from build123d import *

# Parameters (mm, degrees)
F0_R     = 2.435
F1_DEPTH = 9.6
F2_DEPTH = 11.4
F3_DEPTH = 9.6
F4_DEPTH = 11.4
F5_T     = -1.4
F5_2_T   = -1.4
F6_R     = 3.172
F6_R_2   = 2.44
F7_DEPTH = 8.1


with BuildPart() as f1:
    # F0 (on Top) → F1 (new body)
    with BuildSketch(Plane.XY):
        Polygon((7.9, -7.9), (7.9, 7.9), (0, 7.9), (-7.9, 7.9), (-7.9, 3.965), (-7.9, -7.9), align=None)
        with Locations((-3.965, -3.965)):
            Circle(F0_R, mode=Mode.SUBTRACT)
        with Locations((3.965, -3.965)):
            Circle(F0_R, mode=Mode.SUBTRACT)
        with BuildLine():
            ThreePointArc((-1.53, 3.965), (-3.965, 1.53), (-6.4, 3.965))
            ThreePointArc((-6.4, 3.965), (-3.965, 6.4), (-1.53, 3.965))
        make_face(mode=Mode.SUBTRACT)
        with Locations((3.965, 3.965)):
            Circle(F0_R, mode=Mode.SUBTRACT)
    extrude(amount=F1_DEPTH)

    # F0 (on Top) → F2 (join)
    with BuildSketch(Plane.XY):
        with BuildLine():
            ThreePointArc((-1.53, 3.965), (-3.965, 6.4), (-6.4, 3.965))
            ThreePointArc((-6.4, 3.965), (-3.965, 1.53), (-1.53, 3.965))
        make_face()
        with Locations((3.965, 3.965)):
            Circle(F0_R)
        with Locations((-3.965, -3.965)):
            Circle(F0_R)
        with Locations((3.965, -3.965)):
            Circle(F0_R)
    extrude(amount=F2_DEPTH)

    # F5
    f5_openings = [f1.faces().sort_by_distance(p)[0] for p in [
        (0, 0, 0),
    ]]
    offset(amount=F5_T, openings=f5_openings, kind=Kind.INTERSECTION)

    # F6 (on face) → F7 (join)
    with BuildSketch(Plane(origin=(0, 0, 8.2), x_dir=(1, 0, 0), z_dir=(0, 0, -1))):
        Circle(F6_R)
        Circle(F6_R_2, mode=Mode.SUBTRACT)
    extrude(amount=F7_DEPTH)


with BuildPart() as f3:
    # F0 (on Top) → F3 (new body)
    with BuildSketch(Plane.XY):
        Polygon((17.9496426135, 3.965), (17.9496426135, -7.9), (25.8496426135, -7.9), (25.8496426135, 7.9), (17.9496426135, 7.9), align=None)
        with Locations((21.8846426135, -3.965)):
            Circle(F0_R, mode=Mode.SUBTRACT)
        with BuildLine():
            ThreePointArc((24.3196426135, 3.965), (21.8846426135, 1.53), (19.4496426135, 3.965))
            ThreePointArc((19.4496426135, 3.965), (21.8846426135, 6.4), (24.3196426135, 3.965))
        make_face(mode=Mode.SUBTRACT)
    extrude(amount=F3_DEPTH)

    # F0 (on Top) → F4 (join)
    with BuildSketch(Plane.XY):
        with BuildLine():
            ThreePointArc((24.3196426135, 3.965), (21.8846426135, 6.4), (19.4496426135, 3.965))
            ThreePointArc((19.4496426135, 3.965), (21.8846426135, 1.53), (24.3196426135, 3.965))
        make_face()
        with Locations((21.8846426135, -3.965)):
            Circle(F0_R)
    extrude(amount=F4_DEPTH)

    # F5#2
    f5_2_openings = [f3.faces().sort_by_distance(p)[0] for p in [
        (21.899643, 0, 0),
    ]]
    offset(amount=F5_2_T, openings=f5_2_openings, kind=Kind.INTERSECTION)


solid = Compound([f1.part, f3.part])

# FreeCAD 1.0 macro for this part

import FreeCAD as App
import Part
import Sketcher
from FreeCAD import Vector
Q = App.Units.Quantity


def faces_at(feature, points):
    """Names of the faces that lie closest to the given points."""
    faces = feature.Shape.Faces
    near = lambda p: min(range(len(faces)), key=lambda i: faces[i].distToShape(Part.Vertex(*p))[0])
    return sorted({f"Face{near(p) + 1}" for p in points})


def add_polygon(sketch, points):
    """Adds a closed chain of lines whose ends are joined by coincident constraints."""
    first, n = sketch.GeometryCount, len(points)
    for a, b in zip(points, points[1:] + points[:1]):
        sketch.addGeometry(Part.LineSegment(App.Vector(*a, 0), App.Vector(*b, 0)), False)
    for i in range(n):
        sketch.addConstraint(Sketcher.Constraint("Coincident", first + i, 2, first + (i + 1) % n, 1))

doc = App.newDocument("Part")
body = doc.addObject("PartDesign::Body", "Body")

# Sketch on XY plane
sketch1 = body.newObject("Sketcher::SketchObject", "Sketch")
sketch1.AttachmentSupport = (doc.getObject("XY_Plane"), [""])
sketch1.MapMode = "FlatFace"
add_polygon(sketch1, [(7.9, -7.9), (7.9, 7.9), (-7.9, 7.9), (-7.9, -7.9)])  # lines 0-3
sketch1.addGeometry(Part.Circle(Vector(-4, -4, 0), Vector(0, 0, 1), 2.4), False)  # 4
sketch1.addGeometry(Part.Circle(Vector(4, -4, 0), Vector(0, 0, 1), 2.4), False)  # 5
sketch1.addGeometry(Part.Circle(Vector(-4, 4, 0), Vector(0, 0, 1), 2.4), False)  # 6
sketch1.addGeometry(Part.Circle(Vector(4, 4, 0), Vector(0, 0, 1), 2.4), False)  # 7
sketch1.addConstraint([
    Sketcher.Constraint("Vertical", 0),
    Sketcher.Constraint("Horizontal", 1),
    Sketcher.Constraint("Vertical", 2),
    Sketcher.Constraint("Horizontal", 3),
    Sketcher.Constraint("Equal", 4, 5),
    Sketcher.Constraint("Equal", 5, 6),
    Sketcher.Constraint("Equal", 6, 7),
    Sketcher.Constraint("Symmetric", 5, 3, 6, 3, -1, 1),
    Sketcher.Constraint("Symmetric", 4, 3, 7, 3, -1, 1),
    Sketcher.Constraint("Symmetric", 0, 2, 2, 2, -1, 1),
    Sketcher.Constraint("Symmetric", 4, 3, 5, 3, -2),
    Sketcher.Constraint("Equal", 3, 0),
    Sketcher.Constraint("Diameter", 4, Q("4.87 mm")),
    Sketcher.Constraint("DistanceX", 1, 2, 1, 1, Q("15.8 mm")),
    Sketcher.Constraint("DistanceX", 4, 3, 5, 3, Q("7.93 mm")),
    Sketcher.Constraint("DistanceY", 4, 3, 6, 3, Q("7.93 mm")),
])
pad1 = body.newObject("PartDesign::Pad", "Pad")
pad1.Profile = sketch1
pad1.Length = 9.6

# Sketch on XY plane
sketch2 = body.newObject("Sketcher::SketchObject", "Sketch001")
sketch2.AttachmentSupport = (doc.getObject("XY_Plane"), [""])
sketch2.MapMode = "FlatFace"
sketch2.addGeometry([
    Part.Circle(Vector(-4, 4, 0), Vector(0, 0, 1), 2.4),
    Part.Circle(Vector(4, 4, 0), Vector(0, 0, 1), 2.4),
    Part.Circle(Vector(-4, -4, 0), Vector(0, 0, 1), 2.4),
    Part.Circle(Vector(4, -4, 0), Vector(0, 0, 1), 2.4),
], False)
sketch2.addConstraint([
    Sketcher.Constraint("Equal", 0, 1),
    Sketcher.Constraint("Equal", 1, 2),
    Sketcher.Constraint("Equal", 2, 3),
    Sketcher.Constraint("Symmetric", 1, 3, 2, 3, -1, 1),
    Sketcher.Constraint("Symmetric", 0, 3, 3, 3, -1, 1),
    Sketcher.Constraint("Symmetric", 0, 3, 1, 3, -2),
    Sketcher.Constraint("Diameter", 0, Q("4.87 mm")),
    Sketcher.Constraint("DistanceX", 0, 3, 1, 3, Q("7.93 mm")),
    Sketcher.Constraint("DistanceY", 2, 3, 0, 3, Q("7.93 mm")),
])
pad2 = body.newObject("PartDesign::Pad", "Pad001")
pad2.Profile = sketch2
pad2.Length = 11.4
doc.recompute()

thickness = body.newObject("PartDesign::Thickness", "Thickness")
thickness.Base = (pad2, faces_at(pad2, [(0, 0, 0)]))
thickness.Value = 1.4
thickness.Reversed = True
thickness.Join = "Intersection"

# Sketch on XY plane
sketch3 = body.newObject("Sketcher::SketchObject", "Sketch002")
sketch3.AttachmentSupport = (doc.getObject("XY_Plane"), [""])
sketch3.MapMode = "FlatFace"
sketch3.AttachmentOffset = App.Placement(Vector(0, 0, 8.2), App.Rotation())
sketch3.addGeometry([
    Part.Circle(Vector(0, 0, 0), Vector(0, 0, 1), 3.2),
    Part.Circle(Vector(0, 0, 0), Vector(0, 0, 1), 2.4),
], False)
sketch3.addConstraint([
    Sketcher.Constraint("Coincident", 0, 3, -1, 1),
    Sketcher.Constraint("Coincident", 1, 3, -1, 1),
    Sketcher.Constraint("Diameter", 1, Q("4.88 mm")),
    Sketcher.Constraint("Diameter", 0, Q("6.344 mm")),
])
pad3 = body.newObject("PartDesign::Pad", "Pad002")
pad3.Profile = sketch3
pad3.Length = 8.1
pad3.Reversed = True
body2 = doc.addObject("PartDesign::Body", "Body001")

# Sketch on XY plane
sketch4 = body2.newObject("Sketcher::SketchObject", "Sketch003")
sketch4.AttachmentSupport = (doc.getObject("XY_Plane001"), [""])
sketch4.MapMode = "FlatFace"
add_polygon(sketch4, [(17.9, -7.9), (25.8, -7.9), (25.8, 7.9), (17.9, 7.9)])  # lines 0-3
sketch4.addGeometry(Part.Circle(Vector(21.9, -4, 0), Vector(0, 0, 1), 2.4), False)  # 4
sketch4.addGeometry(Part.Circle(Vector(21.9, 4, 0), Vector(0, 0, 1), 2.4), False)  # 5
sketch4.addConstraint([
    Sketcher.Constraint("Horizontal", 0),
    Sketcher.Constraint("Vertical", 1),
    Sketcher.Constraint("Horizontal", 2),
    Sketcher.Constraint("Vertical", 3),
    Sketcher.Constraint("Equal", 4, 5),
    Sketcher.Constraint("Symmetric", 4, 3, 5, 3, -1),
    Sketcher.Constraint("Diameter", 4, Q("4.87 mm")),
    Sketcher.Constraint("DistanceX", 0, 1, 0, 2, Q("7.9 mm")),
    Sketcher.Constraint("DistanceY", 1, 1, 1, 2, Q("15.8 mm")),
    Sketcher.Constraint("DistanceY", 0, 2, -1, 1, Q("7.9 mm")),
    Sketcher.Constraint("DistanceY", 4, 3, 5, 3, Q("7.93 mm")),
    Sketcher.Constraint("DistanceX", 4, 3, 0, 2, Q("3.965 mm")),
    Sketcher.Constraint("DistanceX", -1, 1, 4, 3, Q("21.884643 mm")),
])
pad4 = body2.newObject("PartDesign::Pad", "Pad003")
pad4.Profile = sketch4
pad4.Length = 9.6

# Sketch on XY plane
sketch5 = body2.newObject("Sketcher::SketchObject", "Sketch004")
sketch5.AttachmentSupport = (doc.getObject("XY_Plane001"), [""])
sketch5.MapMode = "FlatFace"
sketch5.addGeometry([
    Part.Circle(Vector(21.9, 4, 0), Vector(0, 0, 1), 2.4),
    Part.Circle(Vector(21.9, -4, 0), Vector(0, 0, 1), 2.4),
], False)
sketch5.addConstraint([
    Sketcher.Constraint("Equal", 0, 1),
    Sketcher.Constraint("Symmetric", 0, 3, 1, 3, -1),
    Sketcher.Constraint("Diameter", 0, Q("4.87 mm")),
    Sketcher.Constraint("DistanceY", 1, 3, 0, 3, Q("7.93 mm")),
    Sketcher.Constraint("DistanceX", -1, 1, 0, 3, Q("21.884643 mm")),
])
pad5 = body2.newObject("PartDesign::Pad", "Pad004")
pad5.Profile = sketch5
pad5.Length = 11.4
doc.recompute()

thickness2 = body2.newObject("PartDesign::Thickness", "Thickness001")
thickness2.Base = (pad5, faces_at(pad5, [(21.9, 0, 0)]))
thickness2.Value = 1.4
thickness2.Reversed = True
thickness2.Join = "Intersection"

doc.recompute()
